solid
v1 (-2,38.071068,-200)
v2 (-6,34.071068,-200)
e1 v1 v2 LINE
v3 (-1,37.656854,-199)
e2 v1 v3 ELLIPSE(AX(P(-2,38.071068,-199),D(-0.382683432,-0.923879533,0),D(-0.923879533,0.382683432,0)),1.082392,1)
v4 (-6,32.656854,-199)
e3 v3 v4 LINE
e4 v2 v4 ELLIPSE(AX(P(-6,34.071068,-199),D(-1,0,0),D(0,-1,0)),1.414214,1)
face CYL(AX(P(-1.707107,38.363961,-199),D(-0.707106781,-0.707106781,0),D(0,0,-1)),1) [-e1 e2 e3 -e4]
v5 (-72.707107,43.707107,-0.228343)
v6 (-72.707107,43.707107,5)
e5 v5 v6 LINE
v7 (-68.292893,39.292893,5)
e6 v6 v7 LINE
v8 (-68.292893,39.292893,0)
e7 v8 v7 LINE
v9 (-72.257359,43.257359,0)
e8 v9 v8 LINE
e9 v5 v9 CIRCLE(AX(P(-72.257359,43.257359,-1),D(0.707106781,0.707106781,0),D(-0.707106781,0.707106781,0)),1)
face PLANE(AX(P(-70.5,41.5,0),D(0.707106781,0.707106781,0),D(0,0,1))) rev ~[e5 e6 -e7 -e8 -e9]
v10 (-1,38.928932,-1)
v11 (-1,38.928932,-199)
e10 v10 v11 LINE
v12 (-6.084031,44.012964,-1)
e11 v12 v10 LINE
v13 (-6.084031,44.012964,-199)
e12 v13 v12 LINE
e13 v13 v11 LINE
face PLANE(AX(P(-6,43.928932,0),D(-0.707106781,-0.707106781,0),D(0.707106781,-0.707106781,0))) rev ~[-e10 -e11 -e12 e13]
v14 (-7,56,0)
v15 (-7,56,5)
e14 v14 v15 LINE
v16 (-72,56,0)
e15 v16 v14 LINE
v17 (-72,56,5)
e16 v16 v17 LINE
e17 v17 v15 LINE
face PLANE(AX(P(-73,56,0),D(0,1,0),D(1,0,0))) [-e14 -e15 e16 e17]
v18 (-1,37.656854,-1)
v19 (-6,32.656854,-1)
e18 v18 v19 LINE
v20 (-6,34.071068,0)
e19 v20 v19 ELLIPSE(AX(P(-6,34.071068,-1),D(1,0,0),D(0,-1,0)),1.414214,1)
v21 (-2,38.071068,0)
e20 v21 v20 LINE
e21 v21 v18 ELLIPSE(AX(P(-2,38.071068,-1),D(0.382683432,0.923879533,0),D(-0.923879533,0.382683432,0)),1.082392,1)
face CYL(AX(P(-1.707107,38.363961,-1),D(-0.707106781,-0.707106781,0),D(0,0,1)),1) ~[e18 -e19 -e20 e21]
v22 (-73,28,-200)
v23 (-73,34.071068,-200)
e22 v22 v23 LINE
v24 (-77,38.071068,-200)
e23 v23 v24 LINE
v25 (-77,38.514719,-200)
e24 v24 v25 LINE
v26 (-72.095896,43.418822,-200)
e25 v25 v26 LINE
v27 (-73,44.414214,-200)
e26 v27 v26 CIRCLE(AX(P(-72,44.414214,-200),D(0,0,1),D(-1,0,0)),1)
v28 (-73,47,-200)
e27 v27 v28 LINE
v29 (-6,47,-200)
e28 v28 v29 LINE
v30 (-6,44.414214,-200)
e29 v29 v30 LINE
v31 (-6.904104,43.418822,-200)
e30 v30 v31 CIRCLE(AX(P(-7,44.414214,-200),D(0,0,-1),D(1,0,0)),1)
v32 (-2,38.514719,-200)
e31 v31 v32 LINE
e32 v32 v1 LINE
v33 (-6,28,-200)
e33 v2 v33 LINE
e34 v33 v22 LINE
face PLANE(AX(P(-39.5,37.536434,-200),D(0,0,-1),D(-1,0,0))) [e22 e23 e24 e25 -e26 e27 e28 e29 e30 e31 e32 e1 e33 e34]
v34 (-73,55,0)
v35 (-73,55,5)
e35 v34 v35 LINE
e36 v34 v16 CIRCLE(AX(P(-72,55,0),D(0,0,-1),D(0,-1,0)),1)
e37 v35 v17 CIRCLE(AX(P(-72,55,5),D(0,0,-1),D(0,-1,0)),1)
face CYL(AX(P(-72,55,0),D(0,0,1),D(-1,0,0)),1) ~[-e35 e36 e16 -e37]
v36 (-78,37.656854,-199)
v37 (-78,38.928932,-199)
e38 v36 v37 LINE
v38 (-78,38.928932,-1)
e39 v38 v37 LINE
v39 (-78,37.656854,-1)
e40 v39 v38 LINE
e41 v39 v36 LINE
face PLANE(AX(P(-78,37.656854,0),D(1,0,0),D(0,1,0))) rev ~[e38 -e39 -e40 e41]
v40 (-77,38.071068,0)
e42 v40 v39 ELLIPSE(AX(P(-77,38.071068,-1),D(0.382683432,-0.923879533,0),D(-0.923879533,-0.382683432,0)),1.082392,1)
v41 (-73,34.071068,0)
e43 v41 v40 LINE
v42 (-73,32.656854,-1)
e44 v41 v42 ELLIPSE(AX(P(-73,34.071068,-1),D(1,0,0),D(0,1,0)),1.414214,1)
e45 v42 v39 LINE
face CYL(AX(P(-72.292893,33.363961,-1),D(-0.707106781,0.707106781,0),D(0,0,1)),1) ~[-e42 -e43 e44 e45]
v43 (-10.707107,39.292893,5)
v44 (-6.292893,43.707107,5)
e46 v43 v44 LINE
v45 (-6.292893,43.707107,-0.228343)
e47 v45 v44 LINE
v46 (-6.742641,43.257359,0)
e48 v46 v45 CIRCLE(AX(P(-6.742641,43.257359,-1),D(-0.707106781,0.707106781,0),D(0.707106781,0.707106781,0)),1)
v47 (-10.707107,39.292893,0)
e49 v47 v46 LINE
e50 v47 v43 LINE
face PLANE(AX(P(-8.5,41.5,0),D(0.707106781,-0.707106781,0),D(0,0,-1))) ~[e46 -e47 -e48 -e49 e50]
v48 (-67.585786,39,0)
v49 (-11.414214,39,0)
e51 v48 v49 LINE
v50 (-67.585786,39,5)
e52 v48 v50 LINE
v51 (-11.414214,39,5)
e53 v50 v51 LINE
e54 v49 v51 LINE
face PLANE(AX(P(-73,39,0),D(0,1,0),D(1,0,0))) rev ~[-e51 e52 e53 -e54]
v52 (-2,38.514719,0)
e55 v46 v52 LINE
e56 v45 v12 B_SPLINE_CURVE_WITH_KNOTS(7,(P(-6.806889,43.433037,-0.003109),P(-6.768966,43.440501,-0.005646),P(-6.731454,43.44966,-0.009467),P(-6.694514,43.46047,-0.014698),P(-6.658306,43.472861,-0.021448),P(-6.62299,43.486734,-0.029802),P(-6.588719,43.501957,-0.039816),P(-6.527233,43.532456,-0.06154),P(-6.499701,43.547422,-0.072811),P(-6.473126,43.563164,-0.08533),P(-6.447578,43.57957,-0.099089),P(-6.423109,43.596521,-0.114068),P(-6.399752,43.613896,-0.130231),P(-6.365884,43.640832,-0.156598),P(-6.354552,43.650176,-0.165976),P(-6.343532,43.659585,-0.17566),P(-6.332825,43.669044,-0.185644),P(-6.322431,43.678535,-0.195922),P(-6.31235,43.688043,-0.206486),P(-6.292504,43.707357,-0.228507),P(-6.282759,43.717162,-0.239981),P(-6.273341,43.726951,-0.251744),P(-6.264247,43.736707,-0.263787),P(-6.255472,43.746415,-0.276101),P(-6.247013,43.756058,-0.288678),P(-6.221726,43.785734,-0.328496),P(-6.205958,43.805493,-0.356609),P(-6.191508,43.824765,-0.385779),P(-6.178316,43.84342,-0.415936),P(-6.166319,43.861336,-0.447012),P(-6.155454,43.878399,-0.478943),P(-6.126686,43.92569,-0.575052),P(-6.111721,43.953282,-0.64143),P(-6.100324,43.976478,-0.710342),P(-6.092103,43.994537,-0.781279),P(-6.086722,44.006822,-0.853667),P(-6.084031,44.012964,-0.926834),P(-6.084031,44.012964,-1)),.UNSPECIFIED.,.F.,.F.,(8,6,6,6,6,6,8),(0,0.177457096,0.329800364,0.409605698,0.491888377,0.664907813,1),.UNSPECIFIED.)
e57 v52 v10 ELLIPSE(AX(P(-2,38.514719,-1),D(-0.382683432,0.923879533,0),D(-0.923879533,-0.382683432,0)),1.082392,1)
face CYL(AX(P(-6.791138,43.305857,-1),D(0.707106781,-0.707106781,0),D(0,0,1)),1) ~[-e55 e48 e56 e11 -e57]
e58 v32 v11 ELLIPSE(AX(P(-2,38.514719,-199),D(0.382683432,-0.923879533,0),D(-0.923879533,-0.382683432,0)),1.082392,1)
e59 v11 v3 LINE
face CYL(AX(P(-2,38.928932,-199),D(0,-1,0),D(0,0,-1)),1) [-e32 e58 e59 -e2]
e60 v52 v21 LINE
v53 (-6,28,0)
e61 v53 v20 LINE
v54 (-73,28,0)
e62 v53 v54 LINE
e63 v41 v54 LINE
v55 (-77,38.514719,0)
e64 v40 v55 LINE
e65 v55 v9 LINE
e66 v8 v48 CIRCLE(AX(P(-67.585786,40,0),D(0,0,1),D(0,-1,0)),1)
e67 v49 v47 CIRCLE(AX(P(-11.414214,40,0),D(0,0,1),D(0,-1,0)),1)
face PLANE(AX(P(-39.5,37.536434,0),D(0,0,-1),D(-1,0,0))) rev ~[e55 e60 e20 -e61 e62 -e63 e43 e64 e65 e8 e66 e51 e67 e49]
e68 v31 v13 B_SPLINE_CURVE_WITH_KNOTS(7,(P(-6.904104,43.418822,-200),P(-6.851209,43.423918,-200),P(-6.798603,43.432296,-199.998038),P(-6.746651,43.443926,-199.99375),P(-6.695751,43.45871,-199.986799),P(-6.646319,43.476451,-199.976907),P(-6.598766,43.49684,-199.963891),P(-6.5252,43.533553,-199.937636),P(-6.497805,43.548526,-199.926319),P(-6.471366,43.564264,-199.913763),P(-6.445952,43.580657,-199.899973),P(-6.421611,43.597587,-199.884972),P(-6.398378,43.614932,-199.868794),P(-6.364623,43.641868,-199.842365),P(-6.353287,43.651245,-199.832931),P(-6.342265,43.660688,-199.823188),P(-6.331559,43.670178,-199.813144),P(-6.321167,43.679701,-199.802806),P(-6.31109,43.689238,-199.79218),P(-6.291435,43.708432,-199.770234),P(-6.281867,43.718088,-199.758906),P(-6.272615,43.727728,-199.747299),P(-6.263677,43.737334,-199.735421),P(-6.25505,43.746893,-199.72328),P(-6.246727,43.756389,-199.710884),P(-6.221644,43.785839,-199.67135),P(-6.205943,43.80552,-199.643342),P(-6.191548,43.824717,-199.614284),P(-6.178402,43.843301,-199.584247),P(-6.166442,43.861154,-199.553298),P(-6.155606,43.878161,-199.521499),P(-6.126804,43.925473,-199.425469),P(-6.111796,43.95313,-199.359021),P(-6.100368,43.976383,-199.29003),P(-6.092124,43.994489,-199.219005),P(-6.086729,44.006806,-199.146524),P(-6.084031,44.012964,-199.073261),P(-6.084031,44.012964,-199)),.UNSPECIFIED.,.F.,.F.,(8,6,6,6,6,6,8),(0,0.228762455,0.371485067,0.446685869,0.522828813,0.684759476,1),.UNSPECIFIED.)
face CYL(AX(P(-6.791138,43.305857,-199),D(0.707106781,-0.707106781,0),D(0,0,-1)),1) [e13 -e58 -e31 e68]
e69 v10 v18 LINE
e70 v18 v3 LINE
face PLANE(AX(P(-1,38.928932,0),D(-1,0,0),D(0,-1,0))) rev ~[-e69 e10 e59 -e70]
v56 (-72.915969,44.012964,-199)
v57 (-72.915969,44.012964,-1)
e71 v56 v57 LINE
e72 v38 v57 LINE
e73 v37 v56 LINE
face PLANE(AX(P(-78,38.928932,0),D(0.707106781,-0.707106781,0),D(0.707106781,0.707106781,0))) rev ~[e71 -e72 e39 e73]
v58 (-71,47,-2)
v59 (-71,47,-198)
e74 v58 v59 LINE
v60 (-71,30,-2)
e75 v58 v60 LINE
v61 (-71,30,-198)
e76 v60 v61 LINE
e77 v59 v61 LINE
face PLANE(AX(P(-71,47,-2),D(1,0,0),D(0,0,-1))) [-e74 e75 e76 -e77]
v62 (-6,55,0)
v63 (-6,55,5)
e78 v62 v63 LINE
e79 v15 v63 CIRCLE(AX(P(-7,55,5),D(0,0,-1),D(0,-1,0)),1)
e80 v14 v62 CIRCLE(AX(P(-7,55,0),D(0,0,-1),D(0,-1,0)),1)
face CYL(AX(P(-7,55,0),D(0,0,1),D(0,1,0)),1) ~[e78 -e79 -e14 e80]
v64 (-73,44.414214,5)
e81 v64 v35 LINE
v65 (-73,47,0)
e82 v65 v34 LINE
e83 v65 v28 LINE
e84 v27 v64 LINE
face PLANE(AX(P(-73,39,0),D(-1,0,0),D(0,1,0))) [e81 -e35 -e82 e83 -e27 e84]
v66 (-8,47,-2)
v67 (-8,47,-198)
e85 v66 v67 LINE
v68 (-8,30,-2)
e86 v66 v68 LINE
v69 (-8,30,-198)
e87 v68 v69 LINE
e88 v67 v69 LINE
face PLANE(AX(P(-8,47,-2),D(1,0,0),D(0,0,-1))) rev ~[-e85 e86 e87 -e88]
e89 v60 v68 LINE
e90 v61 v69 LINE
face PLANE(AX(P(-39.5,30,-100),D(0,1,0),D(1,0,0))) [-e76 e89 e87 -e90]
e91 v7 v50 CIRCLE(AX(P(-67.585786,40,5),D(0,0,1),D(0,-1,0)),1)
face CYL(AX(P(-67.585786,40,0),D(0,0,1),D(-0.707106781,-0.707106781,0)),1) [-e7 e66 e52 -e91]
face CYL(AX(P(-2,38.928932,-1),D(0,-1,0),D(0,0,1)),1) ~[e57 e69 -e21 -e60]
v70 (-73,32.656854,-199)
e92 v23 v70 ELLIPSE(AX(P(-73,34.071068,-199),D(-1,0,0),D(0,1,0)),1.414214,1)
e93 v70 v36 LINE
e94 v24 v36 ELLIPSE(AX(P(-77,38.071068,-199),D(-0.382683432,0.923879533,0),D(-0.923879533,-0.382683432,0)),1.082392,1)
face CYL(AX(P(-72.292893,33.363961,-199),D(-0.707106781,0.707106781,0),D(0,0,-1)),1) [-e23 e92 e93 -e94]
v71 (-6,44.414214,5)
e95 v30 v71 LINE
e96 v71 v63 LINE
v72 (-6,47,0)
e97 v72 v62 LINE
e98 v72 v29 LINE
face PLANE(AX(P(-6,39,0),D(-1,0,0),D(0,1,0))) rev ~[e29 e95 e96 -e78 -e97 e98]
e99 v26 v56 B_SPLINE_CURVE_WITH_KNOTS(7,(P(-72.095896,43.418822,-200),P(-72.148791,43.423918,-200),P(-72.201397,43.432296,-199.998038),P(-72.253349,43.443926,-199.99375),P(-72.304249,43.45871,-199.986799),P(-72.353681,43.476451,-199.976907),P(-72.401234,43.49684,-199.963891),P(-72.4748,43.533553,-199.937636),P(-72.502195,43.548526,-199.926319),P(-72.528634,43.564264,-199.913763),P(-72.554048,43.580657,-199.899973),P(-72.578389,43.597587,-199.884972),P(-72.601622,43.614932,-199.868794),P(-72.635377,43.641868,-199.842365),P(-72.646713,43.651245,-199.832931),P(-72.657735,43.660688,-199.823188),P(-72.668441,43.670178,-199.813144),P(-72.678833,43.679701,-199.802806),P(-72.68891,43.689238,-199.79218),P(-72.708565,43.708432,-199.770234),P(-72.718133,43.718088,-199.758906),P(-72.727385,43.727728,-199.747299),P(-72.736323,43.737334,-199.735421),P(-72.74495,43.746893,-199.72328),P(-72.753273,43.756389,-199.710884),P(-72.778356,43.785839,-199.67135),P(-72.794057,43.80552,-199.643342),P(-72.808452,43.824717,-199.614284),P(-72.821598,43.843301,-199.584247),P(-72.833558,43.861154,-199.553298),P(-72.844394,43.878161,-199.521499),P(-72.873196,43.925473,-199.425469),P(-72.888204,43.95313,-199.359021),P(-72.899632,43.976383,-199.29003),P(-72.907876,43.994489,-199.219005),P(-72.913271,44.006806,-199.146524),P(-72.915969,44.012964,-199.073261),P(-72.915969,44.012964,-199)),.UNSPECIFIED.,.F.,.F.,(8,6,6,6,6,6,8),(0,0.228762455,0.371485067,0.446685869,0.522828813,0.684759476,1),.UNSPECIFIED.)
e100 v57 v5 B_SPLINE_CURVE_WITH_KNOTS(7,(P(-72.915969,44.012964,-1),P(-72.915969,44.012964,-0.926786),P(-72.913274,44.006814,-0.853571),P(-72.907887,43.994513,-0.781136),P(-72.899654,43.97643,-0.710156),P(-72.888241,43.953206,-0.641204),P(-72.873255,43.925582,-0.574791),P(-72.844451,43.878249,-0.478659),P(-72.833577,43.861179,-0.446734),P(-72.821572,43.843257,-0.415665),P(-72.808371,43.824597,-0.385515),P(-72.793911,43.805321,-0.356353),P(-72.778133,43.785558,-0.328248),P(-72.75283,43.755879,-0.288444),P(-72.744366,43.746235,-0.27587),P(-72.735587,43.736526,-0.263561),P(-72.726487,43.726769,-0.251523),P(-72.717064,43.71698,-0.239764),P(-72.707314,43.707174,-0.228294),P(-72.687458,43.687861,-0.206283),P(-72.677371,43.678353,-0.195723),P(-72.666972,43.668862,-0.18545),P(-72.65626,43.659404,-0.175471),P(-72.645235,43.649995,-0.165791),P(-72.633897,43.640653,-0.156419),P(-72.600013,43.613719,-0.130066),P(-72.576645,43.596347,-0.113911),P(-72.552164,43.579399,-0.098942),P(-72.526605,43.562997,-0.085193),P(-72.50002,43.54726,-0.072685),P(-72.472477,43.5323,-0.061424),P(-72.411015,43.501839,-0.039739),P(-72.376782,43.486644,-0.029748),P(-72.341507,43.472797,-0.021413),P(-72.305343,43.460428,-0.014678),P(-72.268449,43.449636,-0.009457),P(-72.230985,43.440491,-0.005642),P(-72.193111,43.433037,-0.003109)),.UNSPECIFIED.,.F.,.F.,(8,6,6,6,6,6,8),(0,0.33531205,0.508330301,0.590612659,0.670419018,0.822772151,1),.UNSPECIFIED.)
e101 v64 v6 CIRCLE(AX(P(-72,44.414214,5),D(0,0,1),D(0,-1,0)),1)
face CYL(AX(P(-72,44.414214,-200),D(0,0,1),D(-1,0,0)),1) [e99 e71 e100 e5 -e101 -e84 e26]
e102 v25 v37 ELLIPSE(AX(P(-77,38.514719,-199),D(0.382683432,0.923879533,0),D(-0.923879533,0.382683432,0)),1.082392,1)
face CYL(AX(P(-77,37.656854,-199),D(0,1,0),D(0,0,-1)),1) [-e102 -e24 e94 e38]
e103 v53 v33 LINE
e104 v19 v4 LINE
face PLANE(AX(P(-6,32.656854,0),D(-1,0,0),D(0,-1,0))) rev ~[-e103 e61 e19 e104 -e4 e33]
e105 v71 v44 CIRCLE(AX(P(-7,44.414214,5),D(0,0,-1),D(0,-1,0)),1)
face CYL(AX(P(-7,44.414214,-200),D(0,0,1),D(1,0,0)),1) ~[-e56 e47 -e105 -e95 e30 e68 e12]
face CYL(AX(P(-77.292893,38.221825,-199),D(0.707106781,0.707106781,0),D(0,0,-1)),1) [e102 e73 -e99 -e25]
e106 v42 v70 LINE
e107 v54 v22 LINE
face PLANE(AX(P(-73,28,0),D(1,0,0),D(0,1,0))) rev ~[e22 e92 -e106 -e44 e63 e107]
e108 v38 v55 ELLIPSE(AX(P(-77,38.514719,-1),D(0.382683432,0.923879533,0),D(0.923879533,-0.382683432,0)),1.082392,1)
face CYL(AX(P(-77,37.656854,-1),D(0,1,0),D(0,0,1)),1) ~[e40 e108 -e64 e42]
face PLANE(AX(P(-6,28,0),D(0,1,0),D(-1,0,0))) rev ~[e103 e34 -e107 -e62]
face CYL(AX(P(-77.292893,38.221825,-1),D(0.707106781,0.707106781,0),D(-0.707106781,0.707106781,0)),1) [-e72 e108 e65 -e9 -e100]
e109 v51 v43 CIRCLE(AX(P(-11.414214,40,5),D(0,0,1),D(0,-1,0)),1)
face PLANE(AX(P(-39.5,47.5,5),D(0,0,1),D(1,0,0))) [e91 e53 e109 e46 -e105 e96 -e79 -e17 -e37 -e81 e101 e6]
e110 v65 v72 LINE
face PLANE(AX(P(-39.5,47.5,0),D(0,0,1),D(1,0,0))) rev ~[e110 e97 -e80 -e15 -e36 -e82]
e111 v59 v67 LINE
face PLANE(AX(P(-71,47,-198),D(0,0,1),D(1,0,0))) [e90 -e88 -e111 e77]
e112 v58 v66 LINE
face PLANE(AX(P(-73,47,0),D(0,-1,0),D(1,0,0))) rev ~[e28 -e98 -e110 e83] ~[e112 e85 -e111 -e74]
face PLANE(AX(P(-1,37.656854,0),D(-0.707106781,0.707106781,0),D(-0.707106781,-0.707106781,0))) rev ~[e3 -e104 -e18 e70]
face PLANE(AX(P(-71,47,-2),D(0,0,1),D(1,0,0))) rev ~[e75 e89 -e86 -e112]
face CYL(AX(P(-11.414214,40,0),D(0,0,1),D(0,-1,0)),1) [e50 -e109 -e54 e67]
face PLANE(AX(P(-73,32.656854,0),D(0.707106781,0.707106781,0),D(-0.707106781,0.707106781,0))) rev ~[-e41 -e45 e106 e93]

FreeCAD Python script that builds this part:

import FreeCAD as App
import Part
import Sketcher
from FreeCAD import Vector
Q = App.Units.Quantity


def edges_at(feature, points):
    """Names of the edges that pass closest to the given points."""
    edges = feature.Shape.Edges
    near = lambda p: min(range(len(edges)), key=lambda i: edges[i].distToShape(Part.Vertex(*p))[0])
    return sorted({f"Edge{near(p) + 1}" for p in points})

doc = App.newDocument("Part")
body = doc.addObject("PartDesign::Body", "Body")

# Sketch on XY plane
sketch1 = body.newObject("Sketcher::SketchObject", "Sketch")
sketch1.AttachmentSupport = (doc.getObject("XY_Plane"), [""])
sketch1.MapMode = "FlatFace"
sketch1.addGeometry([
    Part.LineSegment(Vector(-73, 28, 0), Vector(-6, 28, 0)),  # 0
    Part.LineSegment(Vector(-6, 28, 0), Vector(-6, 32.656854, 0)),  # 1
    Part.LineSegment(Vector(-6, 32.656854, 0), Vector(-1, 37.656854, 0)),  # 2
    Part.LineSegment(Vector(-1, 37.656854, 0), Vector(-1, 38.928932, 0)),  # 3
    Part.LineSegment(Vector(-1, 38.928932, 0), Vector(-6, 43.928932, 0)),  # 4
    Part.LineSegment(Vector(-6, 43.928932, 0), Vector(-6, 47, 0)),  # 5
    Part.LineSegment(Vector(-6, 47, 0), Vector(-73, 47, 0)),  # 6
    Part.LineSegment(Vector(-73, 47, 0), Vector(-73, 43.928932, 0)),  # 7
    Part.LineSegment(Vector(-73, 43.928932, 0), Vector(-78, 38.928932, 0)),  # 8
    Part.LineSegment(Vector(-78, 38.928932, 0), Vector(-78, 37.656854, 0)),  # 9
    Part.LineSegment(Vector(-78, 37.656854, 0), Vector(-73, 32.656854, 0)),  # 10
    Part.LineSegment(Vector(-73, 32.656854, 0), Vector(-73, 28, 0)),  # 11
], False)
sketch1.addConstraint([
    Sketcher.Constraint("Coincident", 0, 2, 1, 1),
    Sketcher.Constraint("Coincident", 1, 2, 2, 1),
    Sketcher.Constraint("Coincident", 2, 2, 3, 1),
    Sketcher.Constraint("Coincident", 3, 2, 4, 1),
    Sketcher.Constraint("Coincident", 4, 2, 5, 1),
    Sketcher.Constraint("Coincident", 5, 2, 6, 1),
    Sketcher.Constraint("Coincident", 6, 2, 7, 1),
    Sketcher.Constraint("Coincident", 7, 2, 8, 1),
    Sketcher.Constraint("Coincident", 8, 2, 9, 1),
    Sketcher.Constraint("Coincident", 9, 2, 10, 1),
    Sketcher.Constraint("Coincident", 10, 2, 11, 1),
    Sketcher.Constraint("Coincident", 11, 2, 0, 1),
    Sketcher.Constraint("Horizontal", 0),
    Sketcher.Constraint("Vertical", 1),
    Sketcher.Constraint("Vertical", 3),
    Sketcher.Constraint("Vertical", 5),
    Sketcher.Constraint("Horizontal", 6),
    Sketcher.Constraint("Vertical", 7),
    Sketcher.Constraint("Vertical", 9),
    Sketcher.Constraint("Vertical", 11),
    Sketcher.Constraint("Perpendicular", 2, 4),
    Sketcher.Constraint("Perpendicular", 4, 8),
    Sketcher.Constraint("Perpendicular", 8, 10),
    Sketcher.Constraint("Horizontal", 4, 2, 7, 2),
    Sketcher.Constraint("Horizontal", 3, 2, 8, 2),
    Sketcher.Constraint("Horizontal", 2, 2, 9, 2),
    Sketcher.Constraint("Horizontal", 1, 2, 10, 2),
    Sketcher.Constraint("Vertical", 1, 2, 4, 2),
    Sketcher.Constraint("Vertical", 7, 2, 10, 2),
    Sketcher.Constraint("DistanceX", 0, 1, 0, 2, Q("67 mm")),
    Sketcher.Constraint("DistanceX", 0, 2, -1, 1, Q("6 mm")),
    Sketcher.Constraint("DistanceY", -1, 1, 0, 2, Q("28 mm")),
    Sketcher.Constraint("DistanceX", 2, 2, -1, 1, Q("1 mm")),
    Sketcher.Constraint("DistanceY", -1, 1, 5, 2, Q("47 mm")),
    Sketcher.Constraint("DistanceY", 1, 1, 1, 2, Q("4.656854 mm")),
    Sketcher.Constraint("DistanceY", 3, 1, 3, 2, Q("1.272078 mm")),
])
pad1 = body.newObject("PartDesign::Pad", "Pad")
pad1.Profile = sketch1
pad1.Length = 200
pad1.Reversed = True

# Sketch on XZ plane
sketch2 = body.newObject("Sketcher::SketchObject", "Sketch001")
sketch2.AttachmentSupport = (doc.getObject("XZ_Plane"), [""])
sketch2.MapMode = "FlatFace"
sketch2.AttachmentOffset = App.Placement(Vector(0, 0, -47), App.Rotation())
sketch2.addGeometry([
    Part.LineSegment(Vector(-71, -198, 0), Vector(-71, -2, 0)),
    Part.LineSegment(Vector(-71, -2, 0), Vector(-8, -2, 0)),
    Part.LineSegment(Vector(-8, -2, 0), Vector(-8, -198, 0)),
    Part.LineSegment(Vector(-8, -198, 0), Vector(-71, -198, 0)),
], False)
sketch2.addConstraint([
    Sketcher.Constraint("Coincident", 0, 2, 1, 1),
    Sketcher.Constraint("Coincident", 1, 2, 2, 1),
    Sketcher.Constraint("Coincident", 2, 2, 3, 1),
    Sketcher.Constraint("Coincident", 3, 2, 0, 1),
    Sketcher.Constraint("Vertical", 0),
    Sketcher.Constraint("Horizontal", 1),
    Sketcher.Constraint("Vertical", 2),
    Sketcher.Constraint("Horizontal", 3),
    Sketcher.Constraint("DistanceX", 1, 1, 1, 2, Q("63 mm")),
    Sketcher.Constraint("DistanceY", 0, 1, 0, 2, Q("196 mm")),
    Sketcher.Constraint("DistanceX", 0, 2, -1, 1, Q("71 mm")),
    Sketcher.Constraint("DistanceY", 0, 2, -1, 1, Q("2 mm")),
])
pocket1 = body.newObject("PartDesign::Pocket", "Pocket")
pocket1.Profile = sketch2
pocket1.Length = 17
pocket1.Reversed = True

# Sketch on XY plane
sketch3 = body.newObject("Sketcher::SketchObject", "Sketch002")
sketch3.AttachmentSupport = (doc.getObject("XY_Plane"), [""])
sketch3.MapMode = "FlatFace"
sketch3.addGeometry([
    Part.LineSegment(Vector(-73, 56, 0), Vector(-73, 39, 0)),
    Part.LineSegment(Vector(-73, 39, 0), Vector(-6, 39, 0)),
    Part.LineSegment(Vector(-6, 39, 0), Vector(-6, 56, 0)),
    Part.LineSegment(Vector(-6, 56, 0), Vector(-73, 56, 0)),
], False)
sketch3.addConstraint([
    Sketcher.Constraint("Coincident", 0, 2, 1, 1),
    Sketcher.Constraint("Coincident", 1, 2, 2, 1),
    Sketcher.Constraint("Coincident", 2, 2, 3, 1),
    Sketcher.Constraint("Coincident", 3, 2, 0, 1),
    Sketcher.Constraint("Vertical", 0),
    Sketcher.Constraint("Horizontal", 1),
    Sketcher.Constraint("Vertical", 2),
    Sketcher.Constraint("Horizontal", 3),
    Sketcher.Constraint("DistanceX", 1, 1, 1, 2, Q("67 mm")),
    Sketcher.Constraint("DistanceY", 0, 2, 0, 1, Q("17 mm")),
    Sketcher.Constraint("DistanceX", 0, 2, -1, 1, Q("73 mm")),
    Sketcher.Constraint("DistanceY", -1, 1, 0, 2, Q("39 mm")),
])
pad2 = body.newObject("PartDesign::Pad", "Pad001")
pad2.Profile = sketch3
pad2.Length = 5
doc.recompute()

chamfer = body.newObject("PartDesign::Chamfer", "Chamfer")
chamfer.Base = (pad2, edges_at(pad2, [(-73, 39, 2.5), (-6, 39, 2.5)]))
chamfer.Size = 5
doc.recompute()

fillet = body.newObject("PartDesign::Fillet", "Fillet")
fillet.Base = (chamfer, edges_at(chamfer, [
    (-68, 39, 2.5),
    (-73, 44, -97.5),
    (-11, 39, 2.5),
    (-6, 44, -97.5),
    (-6, 56, 2.5),
    (-73, 56, 2.5),
]))
fillet.Radius = 1
doc.recompute()

fillet2 = body.newObject("PartDesign::Fillet", "Fillet001")
fillet2.Base = (fillet, edges_at(fillet, [
    (-75.5, 35.157, 0),
    (-75.458, 41.471, 0),
    (-78, 38.293, 0),
    (-75.5, 35.157, -200),
    (-78, 38.293, -200),
    (-75.458, 41.471, -200),
    (-3.5, 35.157, -200),
    (-1, 38.293, -200),
    (-3.542, 41.471, -200),
    (-3.5, 35.157, 0),
    (-1, 38.293, 0),
    (-3.542, 41.471, 0),
]))
fillet2.Radius = 1

doc.recompute()
